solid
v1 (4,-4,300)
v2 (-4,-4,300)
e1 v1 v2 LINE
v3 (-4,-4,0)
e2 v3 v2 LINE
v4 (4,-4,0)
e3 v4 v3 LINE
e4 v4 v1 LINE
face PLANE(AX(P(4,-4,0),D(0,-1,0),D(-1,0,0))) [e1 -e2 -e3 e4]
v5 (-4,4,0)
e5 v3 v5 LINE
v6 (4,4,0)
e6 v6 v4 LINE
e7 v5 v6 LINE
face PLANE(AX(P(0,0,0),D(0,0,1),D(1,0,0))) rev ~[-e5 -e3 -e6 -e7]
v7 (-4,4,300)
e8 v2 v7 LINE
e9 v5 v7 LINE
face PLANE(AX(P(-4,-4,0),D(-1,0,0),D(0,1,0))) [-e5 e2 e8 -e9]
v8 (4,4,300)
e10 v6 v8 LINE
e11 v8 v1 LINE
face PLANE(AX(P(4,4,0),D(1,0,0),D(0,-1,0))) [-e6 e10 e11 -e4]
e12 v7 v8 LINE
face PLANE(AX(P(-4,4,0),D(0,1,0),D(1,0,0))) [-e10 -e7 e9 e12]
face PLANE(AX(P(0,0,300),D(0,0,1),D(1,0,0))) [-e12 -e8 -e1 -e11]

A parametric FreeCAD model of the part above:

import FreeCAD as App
import Part
import Sketcher

V = App.Vector


def add_polygon(sketch, points):
    """Adds a closed chain of lines whose ends are joined by coincident constraints."""
    first, n = sketch.GeometryCount, len(points)
    for a, b in zip(points, points[1:] + points[:1]):
        sketch.addGeometry(Part.LineSegment(App.Vector(*a, 0), App.Vector(*b, 0)), False)
    for i in range(n):
        sketch.addConstraint(Sketcher.Constraint("Coincident", first + i, 2, first + (i + 1) % n, 1))

doc = App.newDocument("Part")
body = doc.addObject("PartDesign::Body", "Body")

sketch1 = doc.addObject("Sketcher::SketchObject", "Sketch")
body.addObject(sketch1)
sketch1.AttachmentSupport = (doc.XY_Plane, [""])
sketch1.MapMode = "FlatFace"
add_polygon(sketch1, [(-4, -4), (4, -4), (4, 4), (-4, 4)])
sketch1.addConstraint([
    Sketcher.Constraint("Horizontal", 0),
    Sketcher.Constraint("Vertical", 1),
    Sketcher.Constraint("Horizontal", 2),
    Sketcher.Constraint("Vertical", 3),
    Sketcher.Constraint("Symmetric", 0, 2, 2, 2, -1, 1),
    Sketcher.Constraint("Equal", 2, 1),
    Sketcher.Constraint("DistanceX", 0, 1, 0, 2, 8.0),
])
pad1 = doc.addObject("PartDesign::Pad", "Pad")
body.addObject(pad1)
pad1.Profile = sketch1
pad1.Length = 300

doc.recompute()
